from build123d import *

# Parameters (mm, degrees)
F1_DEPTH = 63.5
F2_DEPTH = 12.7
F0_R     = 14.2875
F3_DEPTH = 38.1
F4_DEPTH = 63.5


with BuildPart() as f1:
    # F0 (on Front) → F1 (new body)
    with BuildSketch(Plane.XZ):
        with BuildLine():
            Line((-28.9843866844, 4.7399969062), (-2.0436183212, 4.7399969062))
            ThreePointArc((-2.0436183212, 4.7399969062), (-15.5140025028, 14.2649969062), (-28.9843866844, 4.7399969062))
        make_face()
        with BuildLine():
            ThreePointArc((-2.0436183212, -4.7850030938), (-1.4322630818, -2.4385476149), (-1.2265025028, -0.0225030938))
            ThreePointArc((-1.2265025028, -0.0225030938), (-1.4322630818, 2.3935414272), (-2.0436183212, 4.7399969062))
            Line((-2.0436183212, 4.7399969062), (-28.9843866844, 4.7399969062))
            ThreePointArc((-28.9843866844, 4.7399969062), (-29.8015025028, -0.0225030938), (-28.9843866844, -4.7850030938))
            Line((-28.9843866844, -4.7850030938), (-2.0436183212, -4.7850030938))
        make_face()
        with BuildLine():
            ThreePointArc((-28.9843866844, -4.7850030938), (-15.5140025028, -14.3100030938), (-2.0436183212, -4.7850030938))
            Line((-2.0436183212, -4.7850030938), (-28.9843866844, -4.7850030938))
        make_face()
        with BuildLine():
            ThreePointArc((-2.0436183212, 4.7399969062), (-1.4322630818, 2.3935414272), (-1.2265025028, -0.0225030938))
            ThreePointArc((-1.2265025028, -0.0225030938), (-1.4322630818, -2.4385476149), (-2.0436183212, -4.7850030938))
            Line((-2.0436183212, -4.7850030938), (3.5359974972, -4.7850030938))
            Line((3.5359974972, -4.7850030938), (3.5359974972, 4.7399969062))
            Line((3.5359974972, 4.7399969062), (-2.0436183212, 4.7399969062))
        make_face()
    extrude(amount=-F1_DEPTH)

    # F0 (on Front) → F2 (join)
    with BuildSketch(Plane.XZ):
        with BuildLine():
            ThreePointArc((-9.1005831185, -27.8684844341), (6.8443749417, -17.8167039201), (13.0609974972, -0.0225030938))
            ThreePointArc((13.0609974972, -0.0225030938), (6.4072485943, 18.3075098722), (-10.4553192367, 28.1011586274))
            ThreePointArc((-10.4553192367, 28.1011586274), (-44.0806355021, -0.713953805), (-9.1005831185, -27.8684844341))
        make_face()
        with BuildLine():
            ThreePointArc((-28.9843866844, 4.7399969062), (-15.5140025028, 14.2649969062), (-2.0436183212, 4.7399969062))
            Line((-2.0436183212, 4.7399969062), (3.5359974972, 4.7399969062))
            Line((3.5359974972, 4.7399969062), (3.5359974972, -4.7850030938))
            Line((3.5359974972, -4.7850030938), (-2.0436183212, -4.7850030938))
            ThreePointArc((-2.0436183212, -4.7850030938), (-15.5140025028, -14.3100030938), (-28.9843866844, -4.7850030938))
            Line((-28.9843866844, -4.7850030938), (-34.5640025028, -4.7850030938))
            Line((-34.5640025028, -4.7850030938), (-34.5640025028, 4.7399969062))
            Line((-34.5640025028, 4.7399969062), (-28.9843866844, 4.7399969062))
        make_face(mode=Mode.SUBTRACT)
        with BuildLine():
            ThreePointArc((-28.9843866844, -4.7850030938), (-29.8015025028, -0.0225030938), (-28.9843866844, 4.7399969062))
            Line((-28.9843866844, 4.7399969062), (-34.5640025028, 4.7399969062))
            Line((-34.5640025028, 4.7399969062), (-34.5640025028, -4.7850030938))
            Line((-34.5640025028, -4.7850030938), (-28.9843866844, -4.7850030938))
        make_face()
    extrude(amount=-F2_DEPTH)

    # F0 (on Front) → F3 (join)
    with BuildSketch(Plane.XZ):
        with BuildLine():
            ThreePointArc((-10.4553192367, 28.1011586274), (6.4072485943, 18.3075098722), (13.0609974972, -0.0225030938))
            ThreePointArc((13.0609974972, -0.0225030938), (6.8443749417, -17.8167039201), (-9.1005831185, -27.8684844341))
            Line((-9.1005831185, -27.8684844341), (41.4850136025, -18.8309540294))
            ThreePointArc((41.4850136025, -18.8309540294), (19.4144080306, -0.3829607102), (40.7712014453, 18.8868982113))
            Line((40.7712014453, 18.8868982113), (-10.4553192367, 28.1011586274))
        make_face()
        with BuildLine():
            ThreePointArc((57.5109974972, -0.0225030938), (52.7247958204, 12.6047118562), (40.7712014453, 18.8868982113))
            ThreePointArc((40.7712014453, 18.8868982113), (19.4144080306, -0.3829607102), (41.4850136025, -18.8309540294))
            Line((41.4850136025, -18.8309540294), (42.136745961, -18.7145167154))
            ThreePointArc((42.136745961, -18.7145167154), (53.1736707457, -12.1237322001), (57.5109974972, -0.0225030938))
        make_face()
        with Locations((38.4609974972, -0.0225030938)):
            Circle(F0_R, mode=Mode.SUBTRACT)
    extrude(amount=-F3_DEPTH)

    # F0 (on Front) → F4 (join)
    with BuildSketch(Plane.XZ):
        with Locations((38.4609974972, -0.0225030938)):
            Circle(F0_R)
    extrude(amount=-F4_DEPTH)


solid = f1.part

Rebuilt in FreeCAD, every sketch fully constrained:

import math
import FreeCAD as App
import Part
import Sketcher
from FreeCAD import Vector
Q = App.Units.Quantity

doc = App.newDocument("Part")
body = doc.addObject("PartDesign::Body", "Body")

sketch1 = doc.addObject("Sketcher::SketchObject", "Sketch")
body.addObject(sketch1)
sketch1.AttachmentSupport = (doc.XZ_Plane, [""])
sketch1.MapMode = "FlatFace"
sketch1.addGeometry([
    Part.ArcOfCircle(Part.Circle(Vector(-16, 0, 0), Vector(0, 0, 1), 14), math.radians(19), math.radians(161)),
    Part.ArcOfCircle(Part.Circle(Vector(-16, 0, 0), Vector(0, 0, 1), 14), math.radians(161), math.radians(199)),
    Part.ArcOfCircle(Part.Circle(Vector(-16, 0, 0), Vector(0, 0, 1), 14), math.radians(-161), math.radians(-19)),
    Part.LineSegment(Vector(-2, -5, 0), Vector(4, -5, 0)),
    Part.LineSegment(Vector(4, -5, 0), Vector(4, 5, 0)),
    Part.LineSegment(Vector(4, 5, 0), Vector(-2, 5, 0)),
], False)
sketch1.addConstraint([
    Sketcher.Constraint("Tangent", 0, 2, 1, 1),
    Sketcher.Constraint("Tangent", 1, 2, 2, 1),
    Sketcher.Constraint("Coincident", 2, 2, 3, 1),
    Sketcher.Constraint("Coincident", 3, 2, 4, 1),
    Sketcher.Constraint("Coincident", 4, 2, 5, 1),
    Sketcher.Constraint("Coincident", 5, 2, 0, 1),
    Sketcher.Constraint("Horizontal", 3),
    Sketcher.Constraint("Vertical", 4),
    Sketcher.Constraint("Horizontal", 5),
    Sketcher.Constraint("Coincident", 2, 3, 0, 3),
    Sketcher.Constraint("Horizontal", 1, 2, 2, 2),
    Sketcher.Constraint("Horizontal", 0, 2, 4, 2),
    Sketcher.Constraint("Vertical", 0, 2, 1, 2),
    Sketcher.Constraint("Radius", 0, Q("0.5625 in")),
    Sketcher.Constraint("DistanceY", 4, 1, 4, 2, Q("0.375 in")),
    Sketcher.Constraint("DistanceX", 0, 3, 3, 2, Q("0.75 in")),
    Sketcher.Constraint("DistanceX", 2, 2, -1, 1, Q("2.043618 mm")),
    Sketcher.Constraint("DistanceY", 0, 3, -1, 1, Q("0.022503 mm")),
])
pad1 = doc.addObject("PartDesign::Pad", "Pad")
body.addObject(pad1)
pad1.Profile = sketch1
pad1.Length = Q("2.5 in")
pad1.Reversed = True

sketch2 = doc.addObject("Sketcher::SketchObject", "Sketch001")
body.addObject(sketch2)
sketch2.AttachmentSupport = (doc.XZ_Plane, [""])
sketch2.MapMode = "FlatFace"
sketch2.addGeometry([
    Part.ArcOfCircle(Part.Circle(Vector(-16, 0, 0), Vector(0, 0, 1), 29), math.radians(-77), math.radians(0)),
    Part.ArcOfCircle(Part.Circle(Vector(-16, 0, 0), Vector(0, 0, 1), 29), math.radians(0), math.radians(283)),
    Part.ArcOfCircle(Part.Circle(Vector(-16, 0, 0), Vector(0, 0, 1), 14), math.radians(-161), math.radians(-19)),
    Part.ArcOfCircle(Part.Circle(Vector(-16, 0, 0), Vector(0, 0, 1), 14), math.radians(161), math.radians(199)),
    Part.ArcOfCircle(Part.Circle(Vector(-16, 0, 0), Vector(0, 0, 1), 14), math.radians(19), math.radians(161)),
    Part.LineSegment(Vector(-2, 5, 0), Vector(4, 5, 0)),
    Part.LineSegment(Vector(4, 5, 0), Vector(4, -5, 0)),
    Part.LineSegment(Vector(4, -5, 0), Vector(-2, -5, 0)),
], False)
sketch2.addConstraint([
    Sketcher.Constraint("Tangent", 0, 1, 1, 2),
    Sketcher.Constraint("Coincident", 1, 1, 0, 2),
    Sketcher.Constraint("Tangent", 2, 1, 3, 2),
    Sketcher.Constraint("Tangent", 3, 1, 4, 2),
    Sketcher.Constraint("Coincident", 4, 1, 5, 1),
    Sketcher.Constraint("Coincident", 5, 2, 6, 1),
    Sketcher.Constraint("Coincident", 6, 2, 7, 1),
    Sketcher.Constraint("Coincident", 7, 2, 2, 2),
    Sketcher.Constraint("Horizontal", 5),
    Sketcher.Constraint("Vertical", 6),
    Sketcher.Constraint("Horizontal", 7),
    Sketcher.Constraint("Coincident", 2, 3, 0, 3),
    Sketcher.Constraint("Coincident", 4, 3, 0, 3),
    Sketcher.Constraint("Horizontal", 4, 3, 1, 1),
    Sketcher.Constraint("Horizontal", 3, 1, 4, 1),
    Sketcher.Constraint("Horizontal", 2, 1, 6, 2),
    Sketcher.Constraint("Vertical", 2, 1, 3, 1),
    Sketcher.Constraint("Radius", 0, Q("1.125 in")),
    Sketcher.Constraint("Radius", 2, Q("0.5625 in")),
    Sketcher.Constraint("DistanceY", 6, 2, 6, 1, Q("0.375 in")),
    Sketcher.Constraint("DistanceX", 0, 3, 5, 2, Q("0.75 in")),
    Sketcher.Constraint("DistanceX", 4, 1, -1, 1, Q("2.043618 mm")),
    Sketcher.Constraint("DistanceX", 0, 3, 0, 1, Q("6.413419 mm")),
    Sketcher.Constraint("DistanceY", 0, 3, -1, 1, Q("0.022503 mm")),
])
pad2 = doc.addObject("PartDesign::Pad", "Pad001")
body.addObject(pad2)
pad2.Profile = sketch2
pad2.Length = Q("0.5 in")
pad2.Reversed = True

sketch3 = doc.addObject("Sketcher::SketchObject", "Sketch002")
body.addObject(sketch3)
sketch3.AttachmentSupport = (doc.XZ_Plane, [""])
sketch3.MapMode = "FlatFace"
sketch3.addGeometry([
    Part.ArcOfCircle(Part.Circle(Vector(-15.5, 0, 0), Vector(0, 0, 1), 28.6), math.radians(0), math.radians(80)),
    Part.ArcOfCircle(Part.Circle(Vector(-15.5, 0, 0), Vector(0, 0, 1), 28.6), math.radians(-77), math.radians(0)),
    Part.LineSegment(Vector(-9.1, -27.9, 0), Vector(41.5, -18.8, 0)),
    Part.LineSegment(Vector(41.5, -18.8, 0), Vector(42.1, -18.7, 0)),
    Part.ArcOfCircle(Part.Circle(Vector(38.5, 0, 0), Vector(0, 0, 1), 19.1), math.radians(-79), math.radians(0)),
    Part.ArcOfCircle(Part.Circle(Vector(38.5, 0, 0), Vector(0, 0, 1), 19.1), math.radians(0), math.radians(83)),
    Part.LineSegment(Vector(40.8, 18.9, 0), Vector(-10.5, 28.1, 0)),
    Part.Circle(Vector(38.5, 0, 0), Vector(0, 0, 1), 14.3),
], False)
sketch3.addConstraint([
    Sketcher.Constraint("Tangent", 0, 1, 1, 2),
    Sketcher.Constraint("Coincident", 1, 1, 2, 1),
    Sketcher.Constraint("Coincident", 2, 2, 3, 1),
    Sketcher.Constraint("Coincident", 3, 2, 4, 1),
    Sketcher.Constraint("Tangent", 4, 2, 5, 1),
    Sketcher.Constraint("Coincident", 5, 2, 6, 1),
    Sketcher.Constraint("Tangent", 6, 2, 0, 2),
    Sketcher.Constraint("Coincident", 7, 3, 4, 3),
    Sketcher.Constraint("Equal", 0, 1),
    Sketcher.Constraint("Equal", 4, 5),
    Sketcher.Constraint("Parallel", 2, 3),
    Sketcher.Constraint("Horizontal", 1, 3, 4, 3),
    Sketcher.Constraint("Horizontal", 7, 3, 0, 1),
    Sketcher.Constraint("Horizontal", 0, 1, 4, 2),
    Sketcher.Constraint("Radius", 4, Q("0.75 in")),
    Sketcher.Constraint("Diameter", 7, Q("1.125 in")),
    Sketcher.Constraint("Radius", 0, Q("1.125 in")),
    Sketcher.Constraint("DistanceX", 0, 1, 4, 3, Q("1 in")),
    Sketcher.Constraint("DistanceX", -1, 1, 5, 2, Q("40.771201 mm")),
    Sketcher.Constraint("DistanceY", -1, 1, 5, 2, Q("18.886898 mm")),
    Sketcher.Constraint("DistanceY", 4, 3, 5, 2, Q("18.909401 mm")),
    Sketcher.Constraint("Distance", 2, Q("51.38657 mm")),
    Sketcher.Constraint("Distance", 3, Q("0.662052 mm")),
    Sketcher.Constraint("DistanceX", 0, 3, 1, 1, Q("6.413419 mm")),
])
pad3 = doc.addObject("PartDesign::Pad", "Pad002")
body.addObject(pad3)
pad3.Profile = sketch3
pad3.Length = Q("1.5 in")
pad3.Reversed = True

sketch4 = doc.addObject("Sketcher::SketchObject", "Sketch003")
body.addObject(sketch4)
sketch4.AttachmentSupport = (doc.XZ_Plane, [""])
sketch4.MapMode = "FlatFace"
sketch4.addGeometry(Part.Circle(Vector(38, 0, 0), Vector(0, 0, 1), 14), False)
sketch4.addConstraint([
    Sketcher.Constraint("Diameter", 0, Q("1.125 in")),
    Sketcher.Constraint("DistanceX", -1, 1, 0, 3, Q("38.460997 mm")),
    Sketcher.Constraint("DistanceY", 0, 3, -1, 1, Q("0.022503 mm")),
])
pad4 = doc.addObject("PartDesign::Pad", "Pad003")
body.addObject(pad4)
pad4.Profile = sketch4
pad4.Length = Q("2.5 in")
pad4.Reversed = True

doc.recompute()
